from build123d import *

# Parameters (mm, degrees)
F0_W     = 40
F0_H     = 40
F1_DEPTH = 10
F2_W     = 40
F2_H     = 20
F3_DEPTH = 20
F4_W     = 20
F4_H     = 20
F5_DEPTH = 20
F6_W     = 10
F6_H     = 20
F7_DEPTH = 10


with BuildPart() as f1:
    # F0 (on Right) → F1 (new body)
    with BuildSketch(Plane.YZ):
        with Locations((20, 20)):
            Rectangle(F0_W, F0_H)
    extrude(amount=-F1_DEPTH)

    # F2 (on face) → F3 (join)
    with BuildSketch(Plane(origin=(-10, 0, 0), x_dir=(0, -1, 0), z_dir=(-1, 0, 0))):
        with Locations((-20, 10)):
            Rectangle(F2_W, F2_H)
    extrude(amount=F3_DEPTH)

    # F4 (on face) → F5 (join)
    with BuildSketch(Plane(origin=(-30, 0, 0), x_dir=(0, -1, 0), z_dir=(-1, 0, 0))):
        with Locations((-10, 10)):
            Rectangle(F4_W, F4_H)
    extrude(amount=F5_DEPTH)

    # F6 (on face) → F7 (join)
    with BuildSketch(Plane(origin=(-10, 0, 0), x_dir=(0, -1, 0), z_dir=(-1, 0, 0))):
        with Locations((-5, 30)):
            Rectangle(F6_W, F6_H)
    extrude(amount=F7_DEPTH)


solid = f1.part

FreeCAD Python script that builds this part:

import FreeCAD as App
import Part
import Sketcher

doc = App.newDocument("Part")
params = doc.addObject("Spreadsheet::Sheet", "Params")
for row, (alias, value) in enumerate([
    ("sketch1_width", "40 mm"),
    ("pad1_length", "10 mm"),
    ("sketch2_width", "40 mm"),
    ("sketch2_height", "20 mm"),
    ("pad2_length", "20 mm"),
    ("sketch3_width", "20 mm"),
    ("pad3_length", "20 mm"),
    ("sketch4_width", "10 mm"),
    ("sketch4_height", "20 mm"),
    ("pad4_length", "10 mm"),
], start=1):
    params.set(f"A{row}", alias)
    params.set(f"B{row}", "=" + value)
    params.setAlias(f"B{row}", alias)

body = doc.addObject("PartDesign::Body", "Body")

# Sketch on YZ plane
sketch1 = body.newObject("Sketcher::SketchObject", "Sketch")
sketch1.AttachmentSupport = (doc.getObject("YZ_Plane"), [""])
sketch1.MapMode = "FlatFace"
sketch1.addGeometry([
    Part.LineSegment(App.Vector(0, 40, 0), App.Vector(0, 0, 0)),
    Part.LineSegment(App.Vector(0, 0, 0), App.Vector(40, 0, 0)),
    Part.LineSegment(App.Vector(40, 0, 0), App.Vector(40, 40, 0)),
    Part.LineSegment(App.Vector(40, 40, 0), App.Vector(0, 40, 0)),
], False)
sketch1.addConstraint([
    Sketcher.Constraint("Coincident", 0, 2, 1, 1),
    Sketcher.Constraint("Coincident", 1, 2, 2, 1),
    Sketcher.Constraint("Coincident", 2, 2, 3, 1),
    Sketcher.Constraint("Coincident", 3, 2, 0, 1),
    Sketcher.Constraint("Vertical", 0),
    Sketcher.Constraint("Horizontal", 1),
    Sketcher.Constraint("Vertical", 2),
    Sketcher.Constraint("Horizontal", 3),
    Sketcher.Constraint("Coincident", 0, 2, -1, 1),
    Sketcher.Constraint("Equal", 3, 0),
    Sketcher.Constraint("DistanceX", 1, 1, 1, 2, 40.0),
])
sketch1.setExpression("Constraints[10]", "Params.sketch1_width")
pad1 = body.newObject("PartDesign::Pad", "Pad")
pad1.Profile = sketch1
pad1.setExpression("Length", "Params.pad1_length")
pad1.Reversed = True

# Sketch on YZ plane
sketch2 = body.newObject("Sketcher::SketchObject", "Sketch001")
sketch2.AttachmentSupport = (doc.getObject("YZ_Plane"), [""])
sketch2.MapMode = "FlatFace"
sketch2.AttachmentOffset = App.Placement(App.Vector(0, 0, -10), App.Rotation())
sketch2.addGeometry([
    Part.LineSegment(App.Vector(40, 20, 0), App.Vector(40, 0, 0)),
    Part.LineSegment(App.Vector(40, 0, 0), App.Vector(0, 0, 0)),
    Part.LineSegment(App.Vector(0, 0, 0), App.Vector(0, 20, 0)),
    Part.LineSegment(App.Vector(0, 20, 0), App.Vector(40, 20, 0)),
], False)
sketch2.addConstraint([
    Sketcher.Constraint("Coincident", 0, 2, 1, 1),
    Sketcher.Constraint("Coincident", 1, 2, 2, 1),
    Sketcher.Constraint("Coincident", 2, 2, 3, 1),
    Sketcher.Constraint("Coincident", 3, 2, 0, 1),
    Sketcher.Constraint("Vertical", 0),
    Sketcher.Constraint("Horizontal", 1),
    Sketcher.Constraint("Vertical", 2),
    Sketcher.Constraint("Horizontal", 3),
    Sketcher.Constraint("Coincident", 1, 2, -1, 1),
    Sketcher.Constraint("DistanceX", 1, 2, 1, 1, 40.0),
    Sketcher.Constraint("DistanceY", 0, 2, 0, 1, 20.0),
])
sketch2.setExpression("Constraints[9]", "Params.sketch2_width")
sketch2.setExpression("Constraints[10]", "Params.sketch2_height")
pad2 = body.newObject("PartDesign::Pad", "Pad001")
pad2.Profile = sketch2
pad2.setExpression("Length", "Params.pad2_length")
pad2.Reversed = True

# Sketch on YZ plane
sketch3 = body.newObject("Sketcher::SketchObject", "Sketch002")
sketch3.AttachmentSupport = (doc.getObject("YZ_Plane"), [""])
sketch3.MapMode = "FlatFace"
sketch3.AttachmentOffset = App.Placement(App.Vector(0, 0, -30), App.Rotation())
sketch3.addGeometry([
    Part.LineSegment(App.Vector(20, 20, 0), App.Vector(20, 0, 0)),
    Part.LineSegment(App.Vector(20, 0, 0), App.Vector(0, 0, 0)),
    Part.LineSegment(App.Vector(0, 0, 0), App.Vector(0, 20, 0)),
    Part.LineSegment(App.Vector(0, 20, 0), App.Vector(20, 20, 0)),
], False)
sketch3.addConstraint([
    Sketcher.Constraint("Coincident", 0, 2, 1, 1),
    Sketcher.Constraint("Coincident", 1, 2, 2, 1),
    Sketcher.Constraint("Coincident", 2, 2, 3, 1),
    Sketcher.Constraint("Coincident", 3, 2, 0, 1),
    Sketcher.Constraint("Vertical", 0),
    Sketcher.Constraint("Horizontal", 1),
    Sketcher.Constraint("Vertical", 2),
    Sketcher.Constraint("Horizontal", 3),
    Sketcher.Constraint("Coincident", 1, 2, -1, 1),
    Sketcher.Constraint("Equal", 3, 0),
    Sketcher.Constraint("DistanceX", 1, 2, 1, 1, 20.0),
])
sketch3.setExpression("Constraints[10]", "Params.sketch3_width")
pad3 = body.newObject("PartDesign::Pad", "Pad002")
pad3.Profile = sketch3
pad3.setExpression("Length", "Params.pad3_length")
pad3.Reversed = True

# Sketch on YZ plane
sketch4 = body.newObject("Sketcher::SketchObject", "Sketch003")
sketch4.AttachmentSupport = (doc.getObject("YZ_Plane"), [""])
sketch4.MapMode = "FlatFace"
sketch4.AttachmentOffset = App.Placement(App.Vector(0, 0, -10), App.Rotation())
sketch4.addGeometry([
    Part.LineSegment(App.Vector(10, 40, 0), App.Vector(10, 20, 0)),
    Part.LineSegment(App.Vector(10, 20, 0), App.Vector(0, 20, 0)),
    Part.LineSegment(App.Vector(0, 20, 0), App.Vector(0, 40, 0)),
    Part.LineSegment(App.Vector(0, 40, 0), App.Vector(10, 40, 0)),
], False)
sketch4.addConstraint([
    Sketcher.Constraint("Coincident", 0, 2, 1, 1),
    Sketcher.Constraint("Coincident", 1, 2, 2, 1),
    Sketcher.Constraint("Coincident", 2, 2, 3, 1),
    Sketcher.Constraint("Coincident", 3, 2, 0, 1),
    Sketcher.Constraint("Vertical", 0),
    Sketcher.Constraint("Horizontal", 1),
    Sketcher.Constraint("Vertical", 2),
    Sketcher.Constraint("Horizontal", 3),
    Sketcher.Constraint("PointOnObject", 1, 2, -2),
    Sketcher.Constraint("DistanceX", 1, 2, 1, 1, 10.0),
    Sketcher.Constraint("DistanceY", 0, 2, 0, 1, 20.0),
    Sketcher.Constraint("DistanceY", -1, 1, 0, 2, 20.0),
])
sketch4.setExpression("Constraints[9]", "Params.sketch4_width")
sketch4.setExpression("Constraints[10]", "Params.sketch4_height")
pad4 = body.newObject("PartDesign::Pad", "Pad003")
pad4.Profile = sketch4
pad4.setExpression("Length", "Params.pad4_length")
pad4.Reversed = True

doc.recompute()
